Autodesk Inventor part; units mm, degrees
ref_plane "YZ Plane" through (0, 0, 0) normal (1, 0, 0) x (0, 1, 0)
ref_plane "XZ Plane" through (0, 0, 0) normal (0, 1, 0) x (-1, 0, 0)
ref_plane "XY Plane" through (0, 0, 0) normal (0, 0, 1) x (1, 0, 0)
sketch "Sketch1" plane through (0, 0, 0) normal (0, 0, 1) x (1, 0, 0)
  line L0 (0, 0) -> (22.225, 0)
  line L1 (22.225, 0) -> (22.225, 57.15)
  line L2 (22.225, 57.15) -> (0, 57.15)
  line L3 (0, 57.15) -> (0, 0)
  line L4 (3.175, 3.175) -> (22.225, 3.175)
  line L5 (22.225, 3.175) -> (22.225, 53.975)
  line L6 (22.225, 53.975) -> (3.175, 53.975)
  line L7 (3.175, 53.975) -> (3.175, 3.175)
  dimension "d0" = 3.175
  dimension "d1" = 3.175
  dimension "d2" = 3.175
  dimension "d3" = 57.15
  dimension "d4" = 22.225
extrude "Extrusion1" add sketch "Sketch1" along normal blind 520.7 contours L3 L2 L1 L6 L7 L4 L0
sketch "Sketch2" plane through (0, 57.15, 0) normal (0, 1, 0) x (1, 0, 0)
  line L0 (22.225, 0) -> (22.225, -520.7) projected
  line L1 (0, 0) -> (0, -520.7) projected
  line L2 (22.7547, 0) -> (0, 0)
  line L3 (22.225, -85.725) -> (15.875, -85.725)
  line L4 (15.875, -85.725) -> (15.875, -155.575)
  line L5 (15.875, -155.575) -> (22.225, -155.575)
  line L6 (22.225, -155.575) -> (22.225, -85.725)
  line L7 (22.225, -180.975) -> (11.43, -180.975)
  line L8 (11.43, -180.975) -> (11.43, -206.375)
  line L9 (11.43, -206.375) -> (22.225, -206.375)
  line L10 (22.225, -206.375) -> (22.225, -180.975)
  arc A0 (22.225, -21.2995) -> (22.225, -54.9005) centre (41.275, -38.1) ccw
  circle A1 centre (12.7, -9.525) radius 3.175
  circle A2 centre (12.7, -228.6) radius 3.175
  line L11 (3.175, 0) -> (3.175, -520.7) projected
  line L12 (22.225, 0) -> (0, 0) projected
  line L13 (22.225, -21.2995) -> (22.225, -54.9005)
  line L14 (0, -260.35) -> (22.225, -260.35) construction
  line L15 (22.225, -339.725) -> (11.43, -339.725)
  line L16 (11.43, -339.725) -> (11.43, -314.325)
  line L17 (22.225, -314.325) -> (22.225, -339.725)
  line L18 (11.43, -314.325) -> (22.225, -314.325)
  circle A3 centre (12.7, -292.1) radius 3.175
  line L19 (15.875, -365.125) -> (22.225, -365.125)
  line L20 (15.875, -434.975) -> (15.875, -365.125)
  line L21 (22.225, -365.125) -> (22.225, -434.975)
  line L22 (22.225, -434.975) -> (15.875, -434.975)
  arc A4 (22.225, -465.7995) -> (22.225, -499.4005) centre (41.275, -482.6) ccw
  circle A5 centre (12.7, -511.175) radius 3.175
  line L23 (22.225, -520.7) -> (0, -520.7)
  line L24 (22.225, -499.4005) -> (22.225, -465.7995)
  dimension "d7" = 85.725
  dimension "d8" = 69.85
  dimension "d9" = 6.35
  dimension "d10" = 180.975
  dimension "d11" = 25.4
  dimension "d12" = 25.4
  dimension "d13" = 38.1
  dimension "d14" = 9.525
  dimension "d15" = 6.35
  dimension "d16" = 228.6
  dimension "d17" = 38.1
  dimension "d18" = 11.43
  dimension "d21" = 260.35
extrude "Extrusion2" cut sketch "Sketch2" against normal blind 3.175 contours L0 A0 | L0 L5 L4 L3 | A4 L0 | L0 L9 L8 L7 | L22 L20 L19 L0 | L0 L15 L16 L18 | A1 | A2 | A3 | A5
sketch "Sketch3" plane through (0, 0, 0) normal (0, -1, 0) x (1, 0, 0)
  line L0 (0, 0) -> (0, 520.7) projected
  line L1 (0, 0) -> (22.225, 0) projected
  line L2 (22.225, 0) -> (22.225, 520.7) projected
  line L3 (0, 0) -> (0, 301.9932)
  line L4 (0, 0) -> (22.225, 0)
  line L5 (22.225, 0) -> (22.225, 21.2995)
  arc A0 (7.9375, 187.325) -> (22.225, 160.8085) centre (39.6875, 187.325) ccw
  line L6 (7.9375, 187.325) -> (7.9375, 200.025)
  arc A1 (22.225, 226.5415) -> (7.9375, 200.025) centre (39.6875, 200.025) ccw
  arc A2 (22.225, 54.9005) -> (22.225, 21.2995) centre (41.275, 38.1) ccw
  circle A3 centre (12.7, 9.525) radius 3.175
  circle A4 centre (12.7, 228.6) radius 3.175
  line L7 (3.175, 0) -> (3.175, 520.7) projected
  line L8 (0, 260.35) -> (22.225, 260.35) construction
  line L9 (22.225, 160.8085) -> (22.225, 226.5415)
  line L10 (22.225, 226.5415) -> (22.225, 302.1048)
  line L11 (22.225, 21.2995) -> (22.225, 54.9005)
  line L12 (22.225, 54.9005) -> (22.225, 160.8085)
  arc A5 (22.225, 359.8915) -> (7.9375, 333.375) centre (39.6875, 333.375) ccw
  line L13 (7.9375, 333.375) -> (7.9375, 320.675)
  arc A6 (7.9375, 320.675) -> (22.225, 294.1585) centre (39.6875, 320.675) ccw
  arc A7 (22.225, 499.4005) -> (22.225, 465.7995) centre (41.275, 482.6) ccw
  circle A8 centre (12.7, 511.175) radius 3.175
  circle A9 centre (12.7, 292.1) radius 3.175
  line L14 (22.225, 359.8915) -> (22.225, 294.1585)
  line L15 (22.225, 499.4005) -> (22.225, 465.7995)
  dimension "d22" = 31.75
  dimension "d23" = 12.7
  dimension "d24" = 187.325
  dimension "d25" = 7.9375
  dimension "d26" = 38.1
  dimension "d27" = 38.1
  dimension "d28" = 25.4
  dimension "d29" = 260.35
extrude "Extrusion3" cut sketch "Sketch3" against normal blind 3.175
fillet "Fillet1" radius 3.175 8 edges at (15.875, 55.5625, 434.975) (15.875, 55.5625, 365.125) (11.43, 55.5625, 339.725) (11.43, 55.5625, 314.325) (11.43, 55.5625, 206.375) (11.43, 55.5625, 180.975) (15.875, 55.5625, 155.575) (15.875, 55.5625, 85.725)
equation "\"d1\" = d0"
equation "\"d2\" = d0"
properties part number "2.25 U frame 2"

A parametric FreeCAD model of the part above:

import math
import FreeCAD as App
import Part
import Sketcher

V = App.Vector
Q = App.Units.Quantity


def edges_at(feature, points):
    """Names of the edges that pass closest to the given points."""
    edges = feature.Shape.Edges
    near = lambda p: min(range(len(edges)), key=lambda i: edges[i].distToShape(Part.Vertex(*p))[0])
    return sorted({f"Edge{near(p) + 1}" for p in points})


def add_polygon(sketch, points):
    """Adds a closed chain of lines whose ends are joined by coincident constraints."""
    first, n = sketch.GeometryCount, len(points)
    for a, b in zip(points, points[1:] + points[:1]):
        sketch.addGeometry(Part.LineSegment(App.Vector(*a, 0), App.Vector(*b, 0)), False)
    for i in range(n):
        sketch.addConstraint(Sketcher.Constraint("Coincident", first + i, 2, first + (i + 1) % n, 1))

doc = App.newDocument("Part")
params = doc.addObject("Spreadsheet::Sheet", "Params")
for row, (alias, value) in enumerate([
    ("sketch1_height", "2.25 in"),
    ("sketch1_width", "0.875 in"),
    ("sketch1_height2", "0.125 in"),
    ("pad1_length", "20.5 in"),
    ("sketch2_radius", "1 in"),
    ("sketch2_diameter", "0.25 in"),
    ("sketch2_height", "1 in"),
    ("sketch2_width", "0.25 in"),
    ("sketch2_height2", "2.75 in"),
    ("pocket1_length", "0.125 in"),
    ("sketch3_radius", "1 in"),
    ("sketch3_radius2", "1.25 in"),
    ("sketch3_height", "0.5 in"),
    ("sketch3_diameter", "0.25 in"),
    ("sketch3_width", "0.75 in"),
    ("pocket2_length", "0.125 in"),
    ("fillet_radius", "0.125 in"),
], start=1):
    params.set(f"A{row}", alias)
    params.set(f"B{row}", "=" + value)
    params.setAlias(f"B{row}", alias)

body = doc.addObject("PartDesign::Body", "Body")

sketch1 = body.newObject("Sketcher::SketchObject", "Sketch")
sketch1.AttachmentSupport = (doc.getObject("XY_Plane"), [""])
sketch1.MapMode = "FlatFace"
add_polygon(sketch1, [(0, 57.15), (0, 0), (22.225, 0), (22.225, 3.175), (3.175, 3.175), (3.175, 53.975), (22.225, 53.975), (22.225, 57.15)])
sketch1.addConstraint(Sketcher.Constraint("Vertical", 0))
sketch1.addConstraint(Sketcher.Constraint("Horizontal", 1))
sketch1.addConstraint(Sketcher.Constraint("Vertical", 2))
sketch1.addConstraint(Sketcher.Constraint("Horizontal", 3))
sketch1.addConstraint(Sketcher.Constraint("Vertical", 4))
sketch1.addConstraint(Sketcher.Constraint("Horizontal", 5))
sketch1.addConstraint(Sketcher.Constraint("Vertical", 6))
sketch1.addConstraint(Sketcher.Constraint("Horizontal", 7))
sketch1.addConstraint(Sketcher.Constraint("Coincident", 0, 2, -1, 1))
sketch1.addConstraint(Sketcher.Constraint("Vertical", 2, 2, 5, 2))
sketch1.addConstraint(Sketcher.Constraint("Equal", 2, 6))
sketch1.addConstraint(Sketcher.Constraint("DistanceY", 0, 2, 0, 1, Q("2.25 in")))
sketch1.addConstraint(Sketcher.Constraint("DistanceX", 1, 1, 1, 2, Q("0.875 in")))
sketch1.addConstraint(Sketcher.Constraint("DistanceY", 2, 1, 2, 2, Q("0.125 in")))
sketch1.addConstraint(Sketcher.Constraint("DistanceX", -1, 1, 3, 2, Q("0.125 in")))
sketch1.setExpression("Constraints[19]", "Params.sketch1_height")
sketch1.setExpression("Constraints[20]", "Params.sketch1_width")
sketch1.setExpression("Constraints[21]", "Params.sketch1_height2")
pad1 = body.newObject("PartDesign::Pad", "Pad")
pad1.Profile = sketch1
pad1.setExpression("Length", "Params.pad1_length")

sketch2 = body.newObject("Sketcher::SketchObject", "Sketch001")
sketch2.AttachmentSupport = (doc.getObject("XZ_Plane"), [""])
sketch2.MapMode = "FlatFace"
sketch2.AttachmentOffset = App.Placement(V(0, 0, -2.25 * 25.4), App.Rotation())
sketch2.addGeometry(Part.LineSegment(V(22.225, 54.9005, 0), V(22.225, 21.2995, 0)), False)
sketch2.addGeometry(Part.ArcOfCircle(Part.Circle(V(41.275, 38.1, 0), V(0, 0, 1), 25.399986), math.radians(138.590413), math.radians(221.409587)), False)
add_polygon(sketch2, [(22.225, 155.575), (22.225, 85.725), (15.875, 85.725), (15.875, 155.575)])
sketch2.addGeometry(Part.ArcOfCircle(Part.Circle(V(41.275, 482.6, 0), V(0, 0, 1), 25.399986), math.radians(138.590413), math.radians(221.409587)), False)
sketch2.addGeometry(Part.LineSegment(V(22.225, 499.4005, 0), V(22.225, 465.7995, 0)), False)
add_polygon(sketch2, [(22.225, 206.375), (22.225, 180.975), (11.43, 180.975), (11.43, 206.375)])
add_polygon(sketch2, [(15.875, 434.975), (22.225, 434.975), (22.225, 365.125), (15.875, 365.125)])
add_polygon(sketch2, [(22.225, 339.725), (22.225, 314.325), (11.43, 314.325), (11.43, 339.725)])
sketch2.addGeometry(Part.Circle(V(12.7, 9.525, 0), V(0, 0, 1), 3.175), False)
sketch2.addGeometry(Part.Circle(V(12.7, 228.6, 0), V(0, 0, 1), 3.175), False)
sketch2.addGeometry(Part.Circle(V(12.7, 292.1, 0), V(0, 0, 1), 3.175), False)
sketch2.addGeometry(Part.Circle(V(12.7, 511.175, 0), V(0, 0, 1), 3.175), False)
sketch2.addConstraint(Sketcher.Constraint("Coincident", 0, 1, 1, 1))
sketch2.addConstraint(Sketcher.Constraint("Coincident", 1, 2, 0, 2))
sketch2.addConstraint(Sketcher.Constraint("Coincident", 6, 1, 7, 1))
sketch2.addConstraint(Sketcher.Constraint("Coincident", 7, 2, 6, 2))
sketch2.addConstraint(Sketcher.Constraint("Vertical", 0))
sketch2.addConstraint(Sketcher.Constraint("Vertical", 2))
sketch2.addConstraint(Sketcher.Constraint("Horizontal", 3))
sketch2.addConstraint(Sketcher.Constraint("Vertical", 4))
sketch2.addConstraint(Sketcher.Constraint("Horizontal", 5))
sketch2.addConstraint(Sketcher.Constraint("Vertical", 7))
sketch2.addConstraint(Sketcher.Constraint("Vertical", 8))
sketch2.addConstraint(Sketcher.Constraint("Horizontal", 9))
sketch2.addConstraint(Sketcher.Constraint("Vertical", 10))
sketch2.addConstraint(Sketcher.Constraint("Horizontal", 11))
sketch2.addConstraint(Sketcher.Constraint("Horizontal", 12))
sketch2.addConstraint(Sketcher.Constraint("Vertical", 13))
sketch2.addConstraint(Sketcher.Constraint("Horizontal", 14))
sketch2.addConstraint(Sketcher.Constraint("Vertical", 15))
sketch2.addConstraint(Sketcher.Constraint("Vertical", 16))
sketch2.addConstraint(Sketcher.Constraint("Horizontal", 17))
sketch2.addConstraint(Sketcher.Constraint("Vertical", 18))
sketch2.addConstraint(Sketcher.Constraint("Horizontal", 19))
sketch2.addConstraint(Sketcher.Constraint("Equal", 1, 6))
sketch2.addConstraint(Sketcher.Constraint("Equal", 20, 21))
sketch2.addConstraint(Sketcher.Constraint("Equal", 21, 22))
sketch2.addConstraint(Sketcher.Constraint("Equal", 22, 23))
sketch2.addConstraint(Sketcher.Constraint("Vertical", 1, 3, 6, 3))
sketch2.addConstraint(Sketcher.Constraint("Vertical", 20, 3, 21, 3))
sketch2.addConstraint(Sketcher.Constraint("Vertical", 21, 3, 22, 3))
sketch2.addConstraint(Sketcher.Constraint("Vertical", 22, 3, 23, 3))
sketch2.addConstraint(Sketcher.Constraint("Vertical", 1, 2, 2, 2))
sketch2.addConstraint(Sketcher.Constraint("Vertical", 5, 2, 6, 1))
sketch2.addConstraint(Sketcher.Constraint("Vertical", 7, 2, 8, 2))
sketch2.addConstraint(Sketcher.Constraint("Vertical", 11, 2, 12, 2))
sketch2.addConstraint(Sketcher.Constraint("Vertical", 4, 2, 14, 2))
sketch2.addConstraint(Sketcher.Constraint("Vertical", 13, 2, 16, 2))
sketch2.addConstraint(Sketcher.Constraint("Vertical", 10, 2, 17, 2))
sketch2.addConstraint(Sketcher.Constraint("Equal", 4, 13))
sketch2.addConstraint(Sketcher.Constraint("Equal", 10, 16))
sketch2.addConstraint(Sketcher.Constraint("Radius", 1, Q("1 in")))
sketch2.addConstraint(Sketcher.Constraint("Diameter", 20, Q("0.25 in")))
sketch2.addConstraint(Sketcher.Constraint("DistanceY", 8, 2, 8, 1, Q("1 in")))
sketch2.addConstraint(Sketcher.Constraint("DistanceY", -1, 1, 21, 3, Q("9 in")))
sketch2.addConstraint(Sketcher.Constraint("DistanceX", 3, 2, 1, 3, Q("1 in")))
sketch2.addConstraint(Sketcher.Constraint("DistanceY", 5, 2, 8, 2, Q("1 in")))
sketch2.addConstraint(Sketcher.Constraint("DistanceY", 18, 2, 14, 2, Q("1 in")))
sketch2.addConstraint(Sketcher.Constraint("DistanceX", 3, 2, 3, 1, Q("0.25 in")))
sketch2.addConstraint(Sketcher.Constraint("DistanceY", 2, 2, 2, 1, Q("2.75 in")))
sketch2.addConstraint(Sketcher.Constraint("DistanceY", -1, 1, 1, 3, Q("1.5 in")))
sketch2.addConstraint(Sketcher.Constraint("DistanceX", -1, 1, 9, 2, Q("0.45 in")))
sketch2.addConstraint(Sketcher.Constraint("DistanceY", -1, 1, 6, 3, Q("19 in")))
sketch2.addConstraint(Sketcher.Constraint("DistanceY", -1, 1, 20, 3, Q("0.375 in")))
sketch2.addConstraint(Sketcher.Constraint("DistanceY", -1, 1, 2, 2, Q("3.375 in")))
sketch2.addConstraint(Sketcher.Constraint("DistanceY", 1, 3, 22, 3, Q("10 in")))
sketch2.addConstraint(Sketcher.Constraint("DistanceX", 20, 3, 0, 1, Q("0.375 in")))
sketch2.addConstraint(Sketcher.Constraint("DistanceY", 12, 2, 23, 3, Q("3 in")))
sketch2.addConstraint(Sketcher.Constraint("DistanceY", 21, 3, 16, 2, Q("3.375 in")))
sketch2.addConstraint(Sketcher.Constraint("DistanceX", -1, 1, 20, 3, Q("0.5 in")))
sketch2.setExpression("Constraints[55]", "Params.sketch2_radius")
sketch2.setExpression("Constraints[56]", "Params.sketch2_diameter")
sketch2.setExpression("Constraints[57]", "Params.sketch2_height")
sketch2.setExpression("Constraints[62]", "Params.sketch2_width")
sketch2.setExpression("Constraints[63]", "Params.sketch2_height2")
pocket1 = body.newObject("PartDesign::Pocket", "Pocket")
pocket1.Profile = sketch2
pocket1.setExpression("Length", "Params.pocket1_length")
pocket1.Reversed = True

sketch3 = body.newObject("Sketcher::SketchObject", "Sketch002")
sketch3.AttachmentSupport = (doc.getObject("XZ_Plane"), [""])
sketch3.MapMode = "FlatFace"
sketch3.addGeometry(Part.ArcOfCircle(Part.Circle(V(41.275, 38.1, 0), V(0, 0, 1), 25.399986), math.radians(138.590413), math.radians(221.409587)), False)
sketch3.addGeometry(Part.LineSegment(V(22.225, 21.2995, 0), V(22.225, 54.9005, 0)), False)
sketch3.addGeometry(Part.ArcOfCircle(Part.Circle(V(41.275, 482.6, 0), V(0, 0, 1), 25.399986), math.radians(138.590413), math.radians(221.409587)), False)
sketch3.addGeometry(Part.LineSegment(V(22.225, 465.7995, 0), V(22.225, 499.4005, 0)), False)
sketch3.addGeometry(Part.ArcOfCircle(Part.Circle(V(39.6875, 320.675, 0), V(0, 0, 1), 31.75), math.radians(180), math.radians(236.633009)), False)
sketch3.addGeometry(Part.LineSegment(V(22.225, 294.1585, 0), V(22.225, 359.8915, 0)), False)
sketch3.addGeometry(Part.ArcOfCircle(Part.Circle(V(39.6875, 333.375, 0), V(0, 0, 1), 31.750019), math.radians(123.366991), math.radians(180)), False)
sketch3.addGeometry(Part.LineSegment(V(7.9375, 333.375, 0), V(7.9375, 320.675, 0)), False)
sketch3.addGeometry(Part.ArcOfCircle(Part.Circle(V(39.6875, 187.325, 0), V(0, 0, 1), 31.75), math.radians(180), math.radians(236.633009)), False)
sketch3.addGeometry(Part.LineSegment(V(22.225, 160.8085, 0), V(22.225, 226.5415, 0)), False)
sketch3.addGeometry(Part.ArcOfCircle(Part.Circle(V(39.6875, 200.025, 0), V(0, 0, 1), 31.750019), math.radians(123.366991), math.radians(180)), False)
sketch3.addGeometry(Part.LineSegment(V(7.9375, 200.025, 0), V(7.9375, 187.325, 0)), False)
sketch3.addGeometry(Part.Circle(V(12.7, 9.525, 0), V(0, 0, 1), 3.175), False)
sketch3.addGeometry(Part.Circle(V(12.7, 228.6, 0), V(0, 0, 1), 3.175), False)
sketch3.addGeometry(Part.Circle(V(12.7, 511.175, 0), V(0, 0, 1), 3.175), False)
sketch3.addGeometry(Part.Circle(V(12.7, 292.1, 0), V(0, 0, 1), 3.175), False)
sketch3.addConstraint(Sketcher.Constraint("Coincident", 0, 1, 1, 2))
sketch3.addConstraint(Sketcher.Constraint("Coincident", 1, 1, 0, 2))
sketch3.addConstraint(Sketcher.Constraint("Coincident", 2, 1, 3, 2))
sketch3.addConstraint(Sketcher.Constraint("Coincident", 3, 1, 2, 2))
sketch3.addConstraint(Sketcher.Constraint("Coincident", 4, 2, 5, 1))
sketch3.addConstraint(Sketcher.Constraint("Coincident", 5, 2, 6, 1))
sketch3.addConstraint(Sketcher.Constraint("Tangent", 6, 2, 7, 1))
sketch3.addConstraint(Sketcher.Constraint("Tangent", 7, 2, 4, 1))
sketch3.addConstraint(Sketcher.Constraint("Coincident", 8, 2, 9, 1))
sketch3.addConstraint(Sketcher.Constraint("Coincident", 9, 2, 10, 1))
sketch3.addConstraint(Sketcher.Constraint("Tangent", 10, 2, 11, 1))
sketch3.addConstraint(Sketcher.Constraint("Tangent", 11, 2, 8, 1))
sketch3.addConstraint(Sketcher.Constraint("Vertical", 1))
sketch3.addConstraint(Sketcher.Constraint("Vertical", 3))
sketch3.addConstraint(Sketcher.Constraint("Vertical", 5))
sketch3.addConstraint(Sketcher.Constraint("Vertical", 7))
sketch3.addConstraint(Sketcher.Constraint("Vertical", 9))
sketch3.addConstraint(Sketcher.Constraint("Vertical", 11))
sketch3.addConstraint(Sketcher.Constraint("Equal", 0, 2))
sketch3.addConstraint(Sketcher.Constraint("Equal", 4, 6))
sketch3.addConstraint(Sketcher.Constraint("Equal", 6, 8))
sketch3.addConstraint(Sketcher.Constraint("Equal", 8, 10))
sketch3.addConstraint(Sketcher.Constraint("Equal", 12, 13))
sketch3.addConstraint(Sketcher.Constraint("Equal", 13, 14))
sketch3.addConstraint(Sketcher.Constraint("Equal", 14, 15))
sketch3.addConstraint(Sketcher.Constraint("Vertical", 0, 3, 2, 3))
sketch3.addConstraint(Sketcher.Constraint("Vertical", 6, 3, 8, 3))
sketch3.addConstraint(Sketcher.Constraint("Vertical", 12, 3, 13, 3))
sketch3.addConstraint(Sketcher.Constraint("Vertical", 13, 3, 14, 3))
sketch3.addConstraint(Sketcher.Constraint("Vertical", 14, 3, 15, 3))
sketch3.addConstraint(Sketcher.Constraint("Vertical", 1, 1, 2, 1))
sketch3.addConstraint(Sketcher.Constraint("Vertical", 3, 1, 4, 2))
sketch3.addConstraint(Sketcher.Constraint("Vertical", 5, 2, 8, 2))
sketch3.addConstraint(Sketcher.Constraint("Equal", 5, 9))
sketch3.addConstraint(Sketcher.Constraint("Radius", 0, Q("1 in")))
sketch3.addConstraint(Sketcher.Constraint("Radius", 4, Q("1.25 in")))
sketch3.addConstraint(Sketcher.Constraint("DistanceY", 7, 2, 7, 1, Q("0.5 in")))
sketch3.addConstraint(Sketcher.Constraint("DistanceY", -1, 1, 0, 3, Q("1.5 in")))
sketch3.addConstraint(Sketcher.Constraint("DistanceX", -1, 1, 12, 3, Q("0.5 in")))
sketch3.addConstraint(Sketcher.Constraint("Diameter", 12, Q("0.25 in")))
sketch3.addConstraint(Sketcher.Constraint("DistanceY", -1, 1, 2, 3, Q("19 in")))
sketch3.addConstraint(Sketcher.Constraint("DistanceY", -1, 1, 8, 3, Q("7.375 in")))
sketch3.addConstraint(Sketcher.Constraint("DistanceY", -1, 1, 13, 3, Q("9 in")))
sketch3.addConstraint(Sketcher.Constraint("DistanceX", -1, 1, 6, 2, Q("0.3125 in")))
sketch3.addConstraint(Sketcher.Constraint("DistanceY", 12, 3, 8, 3, Q("7 in")))
sketch3.addConstraint(Sketcher.Constraint("DistanceY", 6, 3, 14, 3, Q("7 in")))
sketch3.addConstraint(Sketcher.Constraint("DistanceY", -1, 1, 15, 3, Q("11.5 in")))
sketch3.addConstraint(Sketcher.Constraint("DistanceY", 8, 3, 4, 3, Q("5.25 in")))
sketch3.addConstraint(Sketcher.Constraint("DistanceX", 0, 1, 0, 3, Q("0.75 in")))
sketch3.addConstraint(Sketcher.Constraint("DistanceX", -1, 1, 0, 3, Q("1.625 in")))
sketch3.setExpression("Constraints[34]", "Params.sketch3_radius")
sketch3.setExpression("Constraints[35]", "Params.sketch3_radius2")
sketch3.setExpression("Constraints[36]", "Params.sketch3_height")
sketch3.setExpression("Constraints[39]", "Params.sketch3_diameter")
sketch3.setExpression("Constraints[48]", "Params.sketch3_width")
pocket2 = body.newObject("PartDesign::Pocket", "Pocket001")
pocket2.Profile = sketch3
pocket2.setExpression("Length", "Params.pocket2_length")
doc.recompute()

fillet = body.newObject("PartDesign::Fillet", "Fillet")
fillet.Base = (pocket2, edges_at(pocket2, [
    (15.875, 55.562, 434.975),
    (15.875, 55.562, 365.125),
    (11.43, 55.562, 339.725),
    (11.43, 55.562, 314.325),
    (11.43, 55.562, 206.375),
    (11.43, 55.562, 180.975),
    (15.875, 55.562, 155.575),
    (15.875, 55.562, 85.725),
]))
fillet.setExpression("Radius", "Params.fillet_radius")

doc.recompute()
